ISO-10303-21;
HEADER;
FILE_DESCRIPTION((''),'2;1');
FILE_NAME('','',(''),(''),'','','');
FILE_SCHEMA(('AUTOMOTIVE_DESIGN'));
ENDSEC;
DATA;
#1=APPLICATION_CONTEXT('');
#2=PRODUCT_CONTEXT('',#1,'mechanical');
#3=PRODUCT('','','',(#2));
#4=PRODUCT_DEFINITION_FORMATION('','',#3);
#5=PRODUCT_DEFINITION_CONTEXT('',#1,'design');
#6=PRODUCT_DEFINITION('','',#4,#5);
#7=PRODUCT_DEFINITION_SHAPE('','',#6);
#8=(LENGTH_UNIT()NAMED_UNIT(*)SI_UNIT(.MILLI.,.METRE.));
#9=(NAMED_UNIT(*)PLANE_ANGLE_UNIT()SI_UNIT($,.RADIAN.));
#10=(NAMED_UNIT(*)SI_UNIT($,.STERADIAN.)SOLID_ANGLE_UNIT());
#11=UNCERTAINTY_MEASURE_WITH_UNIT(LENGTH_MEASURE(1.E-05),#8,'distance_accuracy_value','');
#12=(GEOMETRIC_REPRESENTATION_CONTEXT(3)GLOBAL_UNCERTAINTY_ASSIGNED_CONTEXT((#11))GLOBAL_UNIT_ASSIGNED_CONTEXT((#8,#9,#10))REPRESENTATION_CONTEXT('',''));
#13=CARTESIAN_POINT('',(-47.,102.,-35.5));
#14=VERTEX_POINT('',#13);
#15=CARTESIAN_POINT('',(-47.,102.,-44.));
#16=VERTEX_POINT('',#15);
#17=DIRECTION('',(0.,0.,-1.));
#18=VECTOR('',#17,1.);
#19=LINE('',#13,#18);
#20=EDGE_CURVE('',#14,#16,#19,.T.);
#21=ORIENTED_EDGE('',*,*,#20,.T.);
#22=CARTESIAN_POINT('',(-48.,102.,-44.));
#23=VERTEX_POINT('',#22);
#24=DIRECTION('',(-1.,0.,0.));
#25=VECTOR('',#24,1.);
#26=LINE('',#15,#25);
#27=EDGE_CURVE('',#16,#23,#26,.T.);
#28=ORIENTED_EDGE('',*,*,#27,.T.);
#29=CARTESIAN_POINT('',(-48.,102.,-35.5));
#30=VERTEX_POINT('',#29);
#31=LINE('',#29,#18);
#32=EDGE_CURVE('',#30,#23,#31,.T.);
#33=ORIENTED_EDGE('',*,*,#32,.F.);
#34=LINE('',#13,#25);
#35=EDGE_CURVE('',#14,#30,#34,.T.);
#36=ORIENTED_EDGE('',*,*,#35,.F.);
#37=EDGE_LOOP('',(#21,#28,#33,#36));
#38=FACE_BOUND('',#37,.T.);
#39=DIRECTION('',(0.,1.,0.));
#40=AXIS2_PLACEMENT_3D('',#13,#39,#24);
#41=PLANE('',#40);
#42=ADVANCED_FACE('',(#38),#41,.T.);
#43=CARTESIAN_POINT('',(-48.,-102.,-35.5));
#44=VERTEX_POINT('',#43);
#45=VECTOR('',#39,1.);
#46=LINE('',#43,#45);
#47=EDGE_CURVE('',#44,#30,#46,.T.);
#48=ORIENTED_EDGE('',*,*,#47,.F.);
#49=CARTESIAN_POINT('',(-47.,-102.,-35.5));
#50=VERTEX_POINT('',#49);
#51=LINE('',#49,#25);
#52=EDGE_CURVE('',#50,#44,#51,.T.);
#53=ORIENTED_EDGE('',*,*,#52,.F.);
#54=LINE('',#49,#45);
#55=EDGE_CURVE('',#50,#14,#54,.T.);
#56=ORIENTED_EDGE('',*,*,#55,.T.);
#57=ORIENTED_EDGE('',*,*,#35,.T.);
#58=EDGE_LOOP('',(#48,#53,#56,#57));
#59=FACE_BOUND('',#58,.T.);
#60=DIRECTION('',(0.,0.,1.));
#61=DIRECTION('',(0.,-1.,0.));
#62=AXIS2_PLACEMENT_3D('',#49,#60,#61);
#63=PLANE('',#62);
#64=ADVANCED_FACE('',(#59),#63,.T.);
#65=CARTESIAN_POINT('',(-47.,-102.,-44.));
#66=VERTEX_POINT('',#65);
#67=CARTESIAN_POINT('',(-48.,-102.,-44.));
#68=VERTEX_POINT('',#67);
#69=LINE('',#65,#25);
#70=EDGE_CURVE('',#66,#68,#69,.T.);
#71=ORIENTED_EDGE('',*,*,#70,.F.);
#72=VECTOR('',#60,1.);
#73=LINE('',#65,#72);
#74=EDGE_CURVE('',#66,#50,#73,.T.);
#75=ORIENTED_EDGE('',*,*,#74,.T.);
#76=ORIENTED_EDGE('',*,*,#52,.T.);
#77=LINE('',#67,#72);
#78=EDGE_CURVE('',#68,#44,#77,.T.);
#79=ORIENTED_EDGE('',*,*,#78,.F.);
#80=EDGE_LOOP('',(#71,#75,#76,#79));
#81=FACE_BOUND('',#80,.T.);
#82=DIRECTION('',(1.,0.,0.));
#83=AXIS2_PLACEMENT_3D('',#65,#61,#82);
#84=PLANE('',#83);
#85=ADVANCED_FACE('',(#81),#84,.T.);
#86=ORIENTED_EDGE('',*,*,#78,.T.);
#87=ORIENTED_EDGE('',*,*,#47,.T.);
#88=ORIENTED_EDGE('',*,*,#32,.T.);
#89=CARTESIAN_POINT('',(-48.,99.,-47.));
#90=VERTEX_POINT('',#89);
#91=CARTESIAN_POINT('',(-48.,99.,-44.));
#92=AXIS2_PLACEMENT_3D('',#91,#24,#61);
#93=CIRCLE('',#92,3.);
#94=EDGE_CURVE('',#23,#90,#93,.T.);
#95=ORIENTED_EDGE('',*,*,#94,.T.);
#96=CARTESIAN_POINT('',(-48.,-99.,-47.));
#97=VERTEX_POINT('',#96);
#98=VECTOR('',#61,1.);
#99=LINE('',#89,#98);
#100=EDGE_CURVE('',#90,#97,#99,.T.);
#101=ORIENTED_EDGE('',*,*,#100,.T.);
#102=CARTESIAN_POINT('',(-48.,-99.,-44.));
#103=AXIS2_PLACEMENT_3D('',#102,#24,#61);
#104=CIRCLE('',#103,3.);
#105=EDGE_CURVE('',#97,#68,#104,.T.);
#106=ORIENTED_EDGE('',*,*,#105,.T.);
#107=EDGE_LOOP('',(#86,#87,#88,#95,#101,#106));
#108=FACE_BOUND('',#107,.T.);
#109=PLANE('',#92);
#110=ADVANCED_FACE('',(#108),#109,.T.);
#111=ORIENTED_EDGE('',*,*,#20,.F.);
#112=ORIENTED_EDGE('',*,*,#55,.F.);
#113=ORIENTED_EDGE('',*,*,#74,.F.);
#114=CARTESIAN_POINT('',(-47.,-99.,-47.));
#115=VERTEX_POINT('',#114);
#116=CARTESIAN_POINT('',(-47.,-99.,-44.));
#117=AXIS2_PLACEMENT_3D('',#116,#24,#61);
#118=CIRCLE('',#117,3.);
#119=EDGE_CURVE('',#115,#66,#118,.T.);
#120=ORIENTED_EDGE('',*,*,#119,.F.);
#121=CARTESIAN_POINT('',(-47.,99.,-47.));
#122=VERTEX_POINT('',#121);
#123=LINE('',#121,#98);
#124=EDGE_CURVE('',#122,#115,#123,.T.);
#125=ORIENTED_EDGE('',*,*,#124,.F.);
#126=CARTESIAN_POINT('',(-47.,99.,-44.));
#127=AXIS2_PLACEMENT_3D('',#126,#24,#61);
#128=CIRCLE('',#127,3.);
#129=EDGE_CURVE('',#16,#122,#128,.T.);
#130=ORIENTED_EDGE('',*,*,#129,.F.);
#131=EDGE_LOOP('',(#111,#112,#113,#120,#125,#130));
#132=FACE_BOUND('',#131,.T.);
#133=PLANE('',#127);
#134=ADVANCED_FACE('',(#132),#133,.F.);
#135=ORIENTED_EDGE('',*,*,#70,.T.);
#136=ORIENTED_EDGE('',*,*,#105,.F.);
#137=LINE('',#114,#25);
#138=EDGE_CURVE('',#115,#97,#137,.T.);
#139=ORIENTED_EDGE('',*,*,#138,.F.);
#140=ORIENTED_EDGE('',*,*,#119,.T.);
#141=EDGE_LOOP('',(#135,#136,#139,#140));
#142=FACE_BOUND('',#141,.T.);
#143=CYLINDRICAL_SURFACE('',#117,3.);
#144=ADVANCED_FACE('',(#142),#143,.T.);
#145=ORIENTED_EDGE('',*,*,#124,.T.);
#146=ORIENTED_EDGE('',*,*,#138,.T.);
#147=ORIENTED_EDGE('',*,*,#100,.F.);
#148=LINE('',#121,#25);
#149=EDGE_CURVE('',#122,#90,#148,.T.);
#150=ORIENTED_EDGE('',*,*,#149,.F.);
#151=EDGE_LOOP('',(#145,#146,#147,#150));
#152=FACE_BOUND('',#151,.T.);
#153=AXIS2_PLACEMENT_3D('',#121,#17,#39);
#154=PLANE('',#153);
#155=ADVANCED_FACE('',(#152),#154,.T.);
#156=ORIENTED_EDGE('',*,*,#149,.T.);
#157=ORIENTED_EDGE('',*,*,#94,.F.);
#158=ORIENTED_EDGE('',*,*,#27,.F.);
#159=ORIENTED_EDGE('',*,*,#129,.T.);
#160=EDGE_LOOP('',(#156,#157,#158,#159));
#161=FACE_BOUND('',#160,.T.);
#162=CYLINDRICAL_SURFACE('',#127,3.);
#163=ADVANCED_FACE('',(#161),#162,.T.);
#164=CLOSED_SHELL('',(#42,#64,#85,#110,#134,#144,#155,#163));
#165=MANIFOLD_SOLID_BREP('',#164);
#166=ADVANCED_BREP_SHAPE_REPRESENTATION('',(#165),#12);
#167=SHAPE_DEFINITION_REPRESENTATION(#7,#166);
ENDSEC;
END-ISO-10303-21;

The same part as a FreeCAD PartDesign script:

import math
import FreeCAD as App
import Part
import Sketcher
Q = App.Units.Quantity

doc = App.newDocument("Part")
body = doc.addObject("PartDesign::Body", "Body")

# Sketch on YZ plane
sketch1 = doc.addObject("Sketcher::SketchObject", "Sketch")
body.addObject(sketch1)
sketch1.AttachmentSupport = (doc.YZ_Plane, [""])
sketch1.MapMode = "FlatFace"
sketch1.AttachmentOffset = App.Placement(App.Vector(0, 0, -48), App.Rotation())
sketch1.addGeometry(Part.LineSegment(App.Vector(99, -47, 0), App.Vector(-99, -47, 0)), False)
sketch1.addGeometry(Part.ArcOfCircle(Part.Circle(App.Vector(-99, -44, 0), App.Vector(0, 0, 1), 3), math.radians(180), math.radians(270)), False)
sketch1.addGeometry(Part.LineSegment(App.Vector(-102, -44, 0), App.Vector(-102, -35.5, 0)), False)
sketch1.addGeometry(Part.LineSegment(App.Vector(-102, -35.5, 0), App.Vector(102, -35.5, 0)), False)
sketch1.addGeometry(Part.LineSegment(App.Vector(102, -35.5, 0), App.Vector(102, -44, 0)), False)
sketch1.addGeometry(Part.ArcOfCircle(Part.Circle(App.Vector(99, -44, 0), App.Vector(0, 0, 1), 3), math.radians(-90), math.radians(0)), False)
sketch1.addConstraint(Sketcher.Constraint("Tangent", 0, 2, 1, 2))
sketch1.addConstraint(Sketcher.Constraint("Tangent", 1, 1, 2, 1))
sketch1.addConstraint(Sketcher.Constraint("Coincident", 2, 2, 3, 1))
sketch1.addConstraint(Sketcher.Constraint("Coincident", 3, 2, 4, 1))
sketch1.addConstraint(Sketcher.Constraint("Tangent", 4, 2, 5, 2))
sketch1.addConstraint(Sketcher.Constraint("Tangent", 5, 1, 0, 1))
sketch1.addConstraint(Sketcher.Constraint("Horizontal", 0))
sketch1.addConstraint(Sketcher.Constraint("Vertical", 2))
sketch1.addConstraint(Sketcher.Constraint("Horizontal", 3))
sketch1.addConstraint(Sketcher.Constraint("Vertical", 4))
sketch1.addConstraint(Sketcher.Constraint("Equal", 1, 5))
sketch1.addConstraint(Sketcher.Constraint("Radius", 1, Q("3 mm")))
sketch1.addConstraint(Sketcher.Constraint("DistanceX", 0, 2, 0, 1, Q("198 mm")))
sketch1.addConstraint(Sketcher.Constraint("DistanceY", 2, 1, 2, 2, Q("8.5 mm")))
sketch1.addConstraint(Sketcher.Constraint("DistanceX", 1, 3, -1, 1, Q("99 mm")))
sketch1.addConstraint(Sketcher.Constraint("DistanceY", 1, 3, -1, 1, Q("44 mm")))
pad1 = doc.addObject("PartDesign::Pad", "Pad")
body.addObject(pad1)
pad1.Profile = sketch1
pad1.Length = 1

doc.recompute()
